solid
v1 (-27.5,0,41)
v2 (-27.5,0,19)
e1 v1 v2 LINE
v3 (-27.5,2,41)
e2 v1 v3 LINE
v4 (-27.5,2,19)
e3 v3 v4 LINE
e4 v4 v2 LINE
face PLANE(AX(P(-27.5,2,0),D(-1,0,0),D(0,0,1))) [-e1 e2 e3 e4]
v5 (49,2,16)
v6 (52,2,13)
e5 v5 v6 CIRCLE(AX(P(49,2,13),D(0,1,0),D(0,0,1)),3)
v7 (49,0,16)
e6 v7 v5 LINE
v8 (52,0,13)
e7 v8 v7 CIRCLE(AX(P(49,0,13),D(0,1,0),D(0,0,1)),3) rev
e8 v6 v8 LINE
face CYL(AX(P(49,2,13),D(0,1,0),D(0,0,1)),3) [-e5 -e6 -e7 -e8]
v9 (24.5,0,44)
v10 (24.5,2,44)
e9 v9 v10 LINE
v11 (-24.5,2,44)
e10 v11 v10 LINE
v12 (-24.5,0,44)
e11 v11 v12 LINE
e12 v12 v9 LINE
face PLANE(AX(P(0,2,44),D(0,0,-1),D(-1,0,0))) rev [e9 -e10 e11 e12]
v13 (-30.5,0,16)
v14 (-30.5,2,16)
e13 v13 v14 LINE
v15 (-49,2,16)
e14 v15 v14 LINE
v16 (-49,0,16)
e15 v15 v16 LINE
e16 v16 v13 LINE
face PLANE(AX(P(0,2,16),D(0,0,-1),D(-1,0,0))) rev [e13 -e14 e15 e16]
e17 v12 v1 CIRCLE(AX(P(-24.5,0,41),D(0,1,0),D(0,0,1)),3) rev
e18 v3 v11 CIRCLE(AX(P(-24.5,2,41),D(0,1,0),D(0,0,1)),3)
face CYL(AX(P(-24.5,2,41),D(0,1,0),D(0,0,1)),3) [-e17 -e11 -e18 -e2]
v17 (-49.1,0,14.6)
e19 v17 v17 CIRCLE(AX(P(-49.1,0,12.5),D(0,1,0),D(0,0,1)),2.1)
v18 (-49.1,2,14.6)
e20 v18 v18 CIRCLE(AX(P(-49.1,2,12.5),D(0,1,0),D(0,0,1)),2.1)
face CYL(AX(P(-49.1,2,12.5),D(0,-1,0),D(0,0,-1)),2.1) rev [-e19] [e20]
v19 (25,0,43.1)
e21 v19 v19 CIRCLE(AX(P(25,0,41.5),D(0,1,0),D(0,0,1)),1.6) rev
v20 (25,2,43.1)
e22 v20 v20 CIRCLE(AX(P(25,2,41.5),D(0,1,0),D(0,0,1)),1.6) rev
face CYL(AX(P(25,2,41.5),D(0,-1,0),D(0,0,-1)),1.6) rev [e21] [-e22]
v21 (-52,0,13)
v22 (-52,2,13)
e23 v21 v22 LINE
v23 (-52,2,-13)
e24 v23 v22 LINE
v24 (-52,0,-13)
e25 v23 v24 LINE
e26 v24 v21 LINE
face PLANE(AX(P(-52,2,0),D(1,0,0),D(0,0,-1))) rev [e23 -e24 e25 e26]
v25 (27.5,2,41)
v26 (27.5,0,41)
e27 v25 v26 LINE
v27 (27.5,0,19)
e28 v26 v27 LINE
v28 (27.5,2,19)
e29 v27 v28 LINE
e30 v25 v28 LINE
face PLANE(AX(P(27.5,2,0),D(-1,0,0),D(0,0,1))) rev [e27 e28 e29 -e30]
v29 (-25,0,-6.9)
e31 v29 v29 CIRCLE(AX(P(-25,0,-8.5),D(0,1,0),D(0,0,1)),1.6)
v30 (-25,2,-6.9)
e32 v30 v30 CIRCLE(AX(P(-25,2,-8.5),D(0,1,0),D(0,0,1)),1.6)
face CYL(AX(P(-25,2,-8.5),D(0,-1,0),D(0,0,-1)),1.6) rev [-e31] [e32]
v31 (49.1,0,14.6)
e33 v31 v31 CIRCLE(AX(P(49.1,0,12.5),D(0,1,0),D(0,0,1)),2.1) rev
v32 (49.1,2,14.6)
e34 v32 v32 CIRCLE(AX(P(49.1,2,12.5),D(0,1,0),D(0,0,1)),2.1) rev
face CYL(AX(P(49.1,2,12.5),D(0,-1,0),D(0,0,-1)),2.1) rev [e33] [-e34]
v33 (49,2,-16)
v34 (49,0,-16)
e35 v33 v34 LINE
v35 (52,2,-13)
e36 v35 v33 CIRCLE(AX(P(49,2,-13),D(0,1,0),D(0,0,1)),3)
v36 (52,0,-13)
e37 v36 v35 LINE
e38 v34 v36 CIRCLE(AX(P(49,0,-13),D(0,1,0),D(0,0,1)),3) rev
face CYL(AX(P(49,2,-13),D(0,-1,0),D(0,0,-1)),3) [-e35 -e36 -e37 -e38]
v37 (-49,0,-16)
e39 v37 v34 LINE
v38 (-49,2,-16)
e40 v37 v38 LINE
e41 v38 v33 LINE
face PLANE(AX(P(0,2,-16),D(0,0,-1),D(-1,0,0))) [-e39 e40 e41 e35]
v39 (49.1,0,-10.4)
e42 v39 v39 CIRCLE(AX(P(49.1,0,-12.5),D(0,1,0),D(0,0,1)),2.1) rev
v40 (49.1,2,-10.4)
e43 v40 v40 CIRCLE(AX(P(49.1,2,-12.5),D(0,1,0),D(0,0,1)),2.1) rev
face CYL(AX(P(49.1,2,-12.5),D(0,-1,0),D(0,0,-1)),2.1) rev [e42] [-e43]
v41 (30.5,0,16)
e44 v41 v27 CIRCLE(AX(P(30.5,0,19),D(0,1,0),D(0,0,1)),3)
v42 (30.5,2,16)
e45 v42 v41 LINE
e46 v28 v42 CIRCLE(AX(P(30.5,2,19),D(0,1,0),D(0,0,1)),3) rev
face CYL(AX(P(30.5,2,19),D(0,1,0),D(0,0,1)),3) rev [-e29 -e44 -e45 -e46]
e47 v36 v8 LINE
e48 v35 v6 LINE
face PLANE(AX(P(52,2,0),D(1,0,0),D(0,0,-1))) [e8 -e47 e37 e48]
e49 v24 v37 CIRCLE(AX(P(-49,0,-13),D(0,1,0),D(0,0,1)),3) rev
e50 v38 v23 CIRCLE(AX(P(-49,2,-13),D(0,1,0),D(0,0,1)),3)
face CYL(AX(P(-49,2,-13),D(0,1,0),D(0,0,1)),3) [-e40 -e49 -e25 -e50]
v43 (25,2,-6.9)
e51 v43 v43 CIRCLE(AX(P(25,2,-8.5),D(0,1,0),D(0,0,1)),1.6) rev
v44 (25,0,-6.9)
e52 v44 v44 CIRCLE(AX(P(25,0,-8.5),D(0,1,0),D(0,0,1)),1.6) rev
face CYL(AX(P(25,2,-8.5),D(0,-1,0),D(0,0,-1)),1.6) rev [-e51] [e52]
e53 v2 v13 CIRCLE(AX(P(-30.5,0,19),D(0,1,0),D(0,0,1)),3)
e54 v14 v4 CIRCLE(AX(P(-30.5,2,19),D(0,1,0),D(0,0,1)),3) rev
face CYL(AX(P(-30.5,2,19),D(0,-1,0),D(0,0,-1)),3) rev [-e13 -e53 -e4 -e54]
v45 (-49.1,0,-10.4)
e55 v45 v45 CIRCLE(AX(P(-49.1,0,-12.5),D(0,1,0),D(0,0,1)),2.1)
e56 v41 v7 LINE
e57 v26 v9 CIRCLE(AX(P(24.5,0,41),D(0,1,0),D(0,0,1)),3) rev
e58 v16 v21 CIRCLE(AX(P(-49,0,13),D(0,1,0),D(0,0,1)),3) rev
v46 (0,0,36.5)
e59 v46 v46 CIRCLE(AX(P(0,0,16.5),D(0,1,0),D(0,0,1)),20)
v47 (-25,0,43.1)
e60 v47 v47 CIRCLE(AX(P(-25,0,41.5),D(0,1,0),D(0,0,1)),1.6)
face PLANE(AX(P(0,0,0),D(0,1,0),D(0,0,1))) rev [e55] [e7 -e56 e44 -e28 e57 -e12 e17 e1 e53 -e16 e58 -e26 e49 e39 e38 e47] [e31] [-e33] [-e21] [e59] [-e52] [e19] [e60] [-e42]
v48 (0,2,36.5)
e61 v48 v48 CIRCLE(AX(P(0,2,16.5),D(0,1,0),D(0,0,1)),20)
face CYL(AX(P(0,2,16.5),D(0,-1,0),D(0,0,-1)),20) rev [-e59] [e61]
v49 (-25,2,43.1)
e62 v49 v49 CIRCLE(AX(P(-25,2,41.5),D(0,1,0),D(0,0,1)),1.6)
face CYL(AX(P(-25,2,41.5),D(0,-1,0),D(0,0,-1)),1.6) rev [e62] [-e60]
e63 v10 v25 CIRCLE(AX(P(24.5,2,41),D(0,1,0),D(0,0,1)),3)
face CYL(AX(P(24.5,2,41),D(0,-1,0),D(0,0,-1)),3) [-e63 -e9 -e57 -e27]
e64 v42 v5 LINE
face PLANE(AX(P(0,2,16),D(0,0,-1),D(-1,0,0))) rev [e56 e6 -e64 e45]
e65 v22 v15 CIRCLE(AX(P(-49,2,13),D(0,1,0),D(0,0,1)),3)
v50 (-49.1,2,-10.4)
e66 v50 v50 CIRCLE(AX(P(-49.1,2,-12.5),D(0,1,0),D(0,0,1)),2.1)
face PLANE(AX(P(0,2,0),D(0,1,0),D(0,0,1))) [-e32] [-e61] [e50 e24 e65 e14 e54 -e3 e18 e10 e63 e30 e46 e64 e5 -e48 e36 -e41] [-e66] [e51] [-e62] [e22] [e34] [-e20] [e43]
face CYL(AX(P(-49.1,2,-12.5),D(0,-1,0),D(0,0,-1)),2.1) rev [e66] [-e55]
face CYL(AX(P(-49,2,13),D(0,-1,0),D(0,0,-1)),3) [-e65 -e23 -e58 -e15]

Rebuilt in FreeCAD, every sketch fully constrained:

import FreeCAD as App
import Part
import Sketcher
Q = App.Units.Quantity


def edges_at(feature, points):
    """Names of the edges that pass closest to the given points."""
    edges = feature.Shape.Edges
    near = lambda p: min(range(len(edges)), key=lambda i: edges[i].distToShape(Part.Vertex(*p))[0])
    return sorted({f"Edge{near(p) + 1}" for p in points})

doc = App.newDocument("Part")
params = doc.addObject("Spreadsheet::Sheet", "Params")
for row, (alias, value) in enumerate([
    ("sketch1_diameter", "40 mm"),
    ("sketch1_diameter2", "3.2 mm"),
    ("sketch1_diameter3", "4.2 mm"),
    ("sketch1_width", "104 mm"),
    ("sketch1_width2", "55 mm"),
    ("pad1_length", "2 mm"),
    ("fillet_radius", "3 mm"),
], start=1):
    params.set(f"A{row}", alias)
    params.set(f"B{row}", "=" + value)
    params.setAlias(f"B{row}", alias)

body = doc.addObject("PartDesign::Body", "Body")

# Sketch on XZ plane
sketch1 = body.newObject("Sketcher::SketchObject", "Sketch")
sketch1.AttachmentSupport = (doc.getObject("XZ_Plane"), [""])
sketch1.MapMode = "FlatFace"
sketch1.addGeometry(Part.LineSegment(App.Vector(52, -16, 0), App.Vector(-52, -16, 0)), False)
sketch1.addGeometry(Part.LineSegment(App.Vector(-52, -16, 0), App.Vector(-52, 16, 0)), False)
sketch1.addGeometry(Part.LineSegment(App.Vector(-52, 16, 0), App.Vector(-27.5, 16, 0)), False)
sketch1.addGeometry(Part.LineSegment(App.Vector(-27.5, 16, 0), App.Vector(-27.5, 44, 0)), False)
sketch1.addGeometry(Part.LineSegment(App.Vector(-27.5, 44, 0), App.Vector(27.5, 44, 0)), False)
sketch1.addGeometry(Part.LineSegment(App.Vector(27.5, 44, 0), App.Vector(27.5, 16, 0)), False)
sketch1.addGeometry(Part.LineSegment(App.Vector(27.5, 16, 0), App.Vector(52, 16, 0)), False)
sketch1.addGeometry(Part.LineSegment(App.Vector(52, 16, 0), App.Vector(52, -16, 0)), False)
sketch1.addGeometry(Part.Circle(App.Vector(-25, 41.5, 0), App.Vector(0, 0, 1), 1.6), False)
sketch1.addGeometry(Part.Circle(App.Vector(25, 41.5, 0), App.Vector(0, 0, 1), 1.6), False)
sketch1.addGeometry(Part.Circle(App.Vector(0, 16.5, 0), App.Vector(0, 0, 1), 20), False)
sketch1.addGeometry(Part.Circle(App.Vector(-49.1, 12.5, 0), App.Vector(0, 0, 1), 2.1), False)
sketch1.addGeometry(Part.Circle(App.Vector(-49.1, -12.5, 0), App.Vector(0, 0, 1), 2.1), False)
sketch1.addGeometry(Part.Circle(App.Vector(-25, -8.5, 0), App.Vector(0, 0, 1), 1.6), False)
sketch1.addGeometry(Part.Circle(App.Vector(49.1, 12.5, 0), App.Vector(0, 0, 1), 2.1), False)
sketch1.addGeometry(Part.Circle(App.Vector(25, -8.5, 0), App.Vector(0, 0, 1), 1.6), False)
sketch1.addGeometry(Part.Circle(App.Vector(49.1, -12.5, 0), App.Vector(0, 0, 1), 2.1), False)
sketch1.addConstraint(Sketcher.Constraint("Coincident", 0, 2, 1, 1))
sketch1.addConstraint(Sketcher.Constraint("Coincident", 1, 2, 2, 1))
sketch1.addConstraint(Sketcher.Constraint("Coincident", 2, 2, 3, 1))
sketch1.addConstraint(Sketcher.Constraint("Coincident", 3, 2, 4, 1))
sketch1.addConstraint(Sketcher.Constraint("Coincident", 4, 2, 5, 1))
sketch1.addConstraint(Sketcher.Constraint("Coincident", 5, 2, 6, 1))
sketch1.addConstraint(Sketcher.Constraint("Coincident", 6, 2, 7, 1))
sketch1.addConstraint(Sketcher.Constraint("Coincident", 7, 2, 0, 1))
sketch1.addConstraint(Sketcher.Constraint("Horizontal", 0))
sketch1.addConstraint(Sketcher.Constraint("Vertical", 1))
sketch1.addConstraint(Sketcher.Constraint("Horizontal", 2))
sketch1.addConstraint(Sketcher.Constraint("Vertical", 3))
sketch1.addConstraint(Sketcher.Constraint("Horizontal", 4))
sketch1.addConstraint(Sketcher.Constraint("Vertical", 5))
sketch1.addConstraint(Sketcher.Constraint("Horizontal", 6))
sketch1.addConstraint(Sketcher.Constraint("Vertical", 7))
sketch1.addConstraint(Sketcher.Constraint("Equal", 8, 9))
sketch1.addConstraint(Sketcher.Constraint("Equal", 11, 12))
sketch1.addConstraint(Sketcher.Constraint("Equal", 9, 13))
sketch1.addConstraint(Sketcher.Constraint("Equal", 12, 14))
sketch1.addConstraint(Sketcher.Constraint("Equal", 13, 15))
sketch1.addConstraint(Sketcher.Constraint("Equal", 14, 16))
sketch1.addConstraint(Sketcher.Constraint("Symmetric", 12, 3, 14, 3, -1, 1))
sketch1.addConstraint(Sketcher.Constraint("Symmetric", 11, 3, 16, 3, -1, 1))
sketch1.addConstraint(Sketcher.Constraint("Symmetric", 0, 2, 6, 2, -1, 1))
sketch1.addConstraint(Sketcher.Constraint("Symmetric", 8, 3, 9, 3, -2))
sketch1.addConstraint(Sketcher.Constraint("Symmetric", 11, 3, 14, 3, -2))
sketch1.addConstraint(Sketcher.Constraint("Symmetric", 13, 3, 15, 3, -2))
sketch1.addConstraint(Sketcher.Constraint("Symmetric", 2, 2, 5, 2, -2))
sketch1.addConstraint(Sketcher.Constraint("PointOnObject", 10, 3, -2))
sketch1.addConstraint(Sketcher.Constraint("Vertical", 8, 3, 13, 3))
sketch1.addConstraint(Sketcher.Constraint("Diameter", 10, Q("40 mm")))
sketch1.addConstraint(Sketcher.Constraint("Diameter", 8, Q("3.2 mm")))
sketch1.addConstraint(Sketcher.Constraint("Diameter", 11, Q("4.2 mm")))
sketch1.addConstraint(Sketcher.Constraint("DistanceX", 0, 2, 0, 1, Q("104 mm")))
sketch1.addConstraint(Sketcher.Constraint("DistanceX", 4, 1, 4, 2, Q("55 mm")))
sketch1.addConstraint(Sketcher.Constraint("DistanceY", 1, 1, 1, 2, Q("32 mm")))
sketch1.addConstraint(Sketcher.Constraint("DistanceY", 3, 1, 3, 2, Q("28 mm")))
sketch1.addConstraint(Sketcher.Constraint("DistanceX", 8, 3, -1, 1, Q("25 mm")))
sketch1.addConstraint(Sketcher.Constraint("DistanceY", 10, 3, 8, 3, Q("25 mm")))
sketch1.addConstraint(Sketcher.Constraint("DistanceY", 11, 3, 8, 3, Q("29 mm")))
sketch1.addConstraint(Sketcher.Constraint("DistanceY", 12, 3, 11, 3, Q("25 mm")))
sketch1.addConstraint(Sketcher.Constraint("DistanceY", 12, 3, 13, 3, Q("4 mm")))
sketch1.addConstraint(Sketcher.Constraint("DistanceX", 11, 3, -1, 1, Q("49.1 mm")))
sketch1.setExpression("Constraints[31]", "Params.sketch1_diameter")
sketch1.setExpression("Constraints[32]", "Params.sketch1_diameter2")
sketch1.setExpression("Constraints[33]", "Params.sketch1_diameter3")
sketch1.setExpression("Constraints[34]", "Params.sketch1_width")
sketch1.setExpression("Constraints[35]", "Params.sketch1_width2")
pad1 = body.newObject("PartDesign::Pad", "Pad")
pad1.Profile = sketch1
pad1.setExpression("Length", "Params.pad1_length")
pad1.Reversed = True
doc.recompute()

fillet = body.newObject("PartDesign::Fillet", "Fillet")
fillet.Base = (pad1, edges_at(pad1, [
    (27.5, 1, 44),
    (-27.5, 1, 44),
    (-27.5, 1, 16),
    (-52, 1, 16),
    (-52, 1, -16),
    (52, 1, -16),
    (52, 1, 16),
    (27.5, 1, 16),
]))
fillet.setExpression("Radius", "Params.fillet_radius")

doc.recompute()
